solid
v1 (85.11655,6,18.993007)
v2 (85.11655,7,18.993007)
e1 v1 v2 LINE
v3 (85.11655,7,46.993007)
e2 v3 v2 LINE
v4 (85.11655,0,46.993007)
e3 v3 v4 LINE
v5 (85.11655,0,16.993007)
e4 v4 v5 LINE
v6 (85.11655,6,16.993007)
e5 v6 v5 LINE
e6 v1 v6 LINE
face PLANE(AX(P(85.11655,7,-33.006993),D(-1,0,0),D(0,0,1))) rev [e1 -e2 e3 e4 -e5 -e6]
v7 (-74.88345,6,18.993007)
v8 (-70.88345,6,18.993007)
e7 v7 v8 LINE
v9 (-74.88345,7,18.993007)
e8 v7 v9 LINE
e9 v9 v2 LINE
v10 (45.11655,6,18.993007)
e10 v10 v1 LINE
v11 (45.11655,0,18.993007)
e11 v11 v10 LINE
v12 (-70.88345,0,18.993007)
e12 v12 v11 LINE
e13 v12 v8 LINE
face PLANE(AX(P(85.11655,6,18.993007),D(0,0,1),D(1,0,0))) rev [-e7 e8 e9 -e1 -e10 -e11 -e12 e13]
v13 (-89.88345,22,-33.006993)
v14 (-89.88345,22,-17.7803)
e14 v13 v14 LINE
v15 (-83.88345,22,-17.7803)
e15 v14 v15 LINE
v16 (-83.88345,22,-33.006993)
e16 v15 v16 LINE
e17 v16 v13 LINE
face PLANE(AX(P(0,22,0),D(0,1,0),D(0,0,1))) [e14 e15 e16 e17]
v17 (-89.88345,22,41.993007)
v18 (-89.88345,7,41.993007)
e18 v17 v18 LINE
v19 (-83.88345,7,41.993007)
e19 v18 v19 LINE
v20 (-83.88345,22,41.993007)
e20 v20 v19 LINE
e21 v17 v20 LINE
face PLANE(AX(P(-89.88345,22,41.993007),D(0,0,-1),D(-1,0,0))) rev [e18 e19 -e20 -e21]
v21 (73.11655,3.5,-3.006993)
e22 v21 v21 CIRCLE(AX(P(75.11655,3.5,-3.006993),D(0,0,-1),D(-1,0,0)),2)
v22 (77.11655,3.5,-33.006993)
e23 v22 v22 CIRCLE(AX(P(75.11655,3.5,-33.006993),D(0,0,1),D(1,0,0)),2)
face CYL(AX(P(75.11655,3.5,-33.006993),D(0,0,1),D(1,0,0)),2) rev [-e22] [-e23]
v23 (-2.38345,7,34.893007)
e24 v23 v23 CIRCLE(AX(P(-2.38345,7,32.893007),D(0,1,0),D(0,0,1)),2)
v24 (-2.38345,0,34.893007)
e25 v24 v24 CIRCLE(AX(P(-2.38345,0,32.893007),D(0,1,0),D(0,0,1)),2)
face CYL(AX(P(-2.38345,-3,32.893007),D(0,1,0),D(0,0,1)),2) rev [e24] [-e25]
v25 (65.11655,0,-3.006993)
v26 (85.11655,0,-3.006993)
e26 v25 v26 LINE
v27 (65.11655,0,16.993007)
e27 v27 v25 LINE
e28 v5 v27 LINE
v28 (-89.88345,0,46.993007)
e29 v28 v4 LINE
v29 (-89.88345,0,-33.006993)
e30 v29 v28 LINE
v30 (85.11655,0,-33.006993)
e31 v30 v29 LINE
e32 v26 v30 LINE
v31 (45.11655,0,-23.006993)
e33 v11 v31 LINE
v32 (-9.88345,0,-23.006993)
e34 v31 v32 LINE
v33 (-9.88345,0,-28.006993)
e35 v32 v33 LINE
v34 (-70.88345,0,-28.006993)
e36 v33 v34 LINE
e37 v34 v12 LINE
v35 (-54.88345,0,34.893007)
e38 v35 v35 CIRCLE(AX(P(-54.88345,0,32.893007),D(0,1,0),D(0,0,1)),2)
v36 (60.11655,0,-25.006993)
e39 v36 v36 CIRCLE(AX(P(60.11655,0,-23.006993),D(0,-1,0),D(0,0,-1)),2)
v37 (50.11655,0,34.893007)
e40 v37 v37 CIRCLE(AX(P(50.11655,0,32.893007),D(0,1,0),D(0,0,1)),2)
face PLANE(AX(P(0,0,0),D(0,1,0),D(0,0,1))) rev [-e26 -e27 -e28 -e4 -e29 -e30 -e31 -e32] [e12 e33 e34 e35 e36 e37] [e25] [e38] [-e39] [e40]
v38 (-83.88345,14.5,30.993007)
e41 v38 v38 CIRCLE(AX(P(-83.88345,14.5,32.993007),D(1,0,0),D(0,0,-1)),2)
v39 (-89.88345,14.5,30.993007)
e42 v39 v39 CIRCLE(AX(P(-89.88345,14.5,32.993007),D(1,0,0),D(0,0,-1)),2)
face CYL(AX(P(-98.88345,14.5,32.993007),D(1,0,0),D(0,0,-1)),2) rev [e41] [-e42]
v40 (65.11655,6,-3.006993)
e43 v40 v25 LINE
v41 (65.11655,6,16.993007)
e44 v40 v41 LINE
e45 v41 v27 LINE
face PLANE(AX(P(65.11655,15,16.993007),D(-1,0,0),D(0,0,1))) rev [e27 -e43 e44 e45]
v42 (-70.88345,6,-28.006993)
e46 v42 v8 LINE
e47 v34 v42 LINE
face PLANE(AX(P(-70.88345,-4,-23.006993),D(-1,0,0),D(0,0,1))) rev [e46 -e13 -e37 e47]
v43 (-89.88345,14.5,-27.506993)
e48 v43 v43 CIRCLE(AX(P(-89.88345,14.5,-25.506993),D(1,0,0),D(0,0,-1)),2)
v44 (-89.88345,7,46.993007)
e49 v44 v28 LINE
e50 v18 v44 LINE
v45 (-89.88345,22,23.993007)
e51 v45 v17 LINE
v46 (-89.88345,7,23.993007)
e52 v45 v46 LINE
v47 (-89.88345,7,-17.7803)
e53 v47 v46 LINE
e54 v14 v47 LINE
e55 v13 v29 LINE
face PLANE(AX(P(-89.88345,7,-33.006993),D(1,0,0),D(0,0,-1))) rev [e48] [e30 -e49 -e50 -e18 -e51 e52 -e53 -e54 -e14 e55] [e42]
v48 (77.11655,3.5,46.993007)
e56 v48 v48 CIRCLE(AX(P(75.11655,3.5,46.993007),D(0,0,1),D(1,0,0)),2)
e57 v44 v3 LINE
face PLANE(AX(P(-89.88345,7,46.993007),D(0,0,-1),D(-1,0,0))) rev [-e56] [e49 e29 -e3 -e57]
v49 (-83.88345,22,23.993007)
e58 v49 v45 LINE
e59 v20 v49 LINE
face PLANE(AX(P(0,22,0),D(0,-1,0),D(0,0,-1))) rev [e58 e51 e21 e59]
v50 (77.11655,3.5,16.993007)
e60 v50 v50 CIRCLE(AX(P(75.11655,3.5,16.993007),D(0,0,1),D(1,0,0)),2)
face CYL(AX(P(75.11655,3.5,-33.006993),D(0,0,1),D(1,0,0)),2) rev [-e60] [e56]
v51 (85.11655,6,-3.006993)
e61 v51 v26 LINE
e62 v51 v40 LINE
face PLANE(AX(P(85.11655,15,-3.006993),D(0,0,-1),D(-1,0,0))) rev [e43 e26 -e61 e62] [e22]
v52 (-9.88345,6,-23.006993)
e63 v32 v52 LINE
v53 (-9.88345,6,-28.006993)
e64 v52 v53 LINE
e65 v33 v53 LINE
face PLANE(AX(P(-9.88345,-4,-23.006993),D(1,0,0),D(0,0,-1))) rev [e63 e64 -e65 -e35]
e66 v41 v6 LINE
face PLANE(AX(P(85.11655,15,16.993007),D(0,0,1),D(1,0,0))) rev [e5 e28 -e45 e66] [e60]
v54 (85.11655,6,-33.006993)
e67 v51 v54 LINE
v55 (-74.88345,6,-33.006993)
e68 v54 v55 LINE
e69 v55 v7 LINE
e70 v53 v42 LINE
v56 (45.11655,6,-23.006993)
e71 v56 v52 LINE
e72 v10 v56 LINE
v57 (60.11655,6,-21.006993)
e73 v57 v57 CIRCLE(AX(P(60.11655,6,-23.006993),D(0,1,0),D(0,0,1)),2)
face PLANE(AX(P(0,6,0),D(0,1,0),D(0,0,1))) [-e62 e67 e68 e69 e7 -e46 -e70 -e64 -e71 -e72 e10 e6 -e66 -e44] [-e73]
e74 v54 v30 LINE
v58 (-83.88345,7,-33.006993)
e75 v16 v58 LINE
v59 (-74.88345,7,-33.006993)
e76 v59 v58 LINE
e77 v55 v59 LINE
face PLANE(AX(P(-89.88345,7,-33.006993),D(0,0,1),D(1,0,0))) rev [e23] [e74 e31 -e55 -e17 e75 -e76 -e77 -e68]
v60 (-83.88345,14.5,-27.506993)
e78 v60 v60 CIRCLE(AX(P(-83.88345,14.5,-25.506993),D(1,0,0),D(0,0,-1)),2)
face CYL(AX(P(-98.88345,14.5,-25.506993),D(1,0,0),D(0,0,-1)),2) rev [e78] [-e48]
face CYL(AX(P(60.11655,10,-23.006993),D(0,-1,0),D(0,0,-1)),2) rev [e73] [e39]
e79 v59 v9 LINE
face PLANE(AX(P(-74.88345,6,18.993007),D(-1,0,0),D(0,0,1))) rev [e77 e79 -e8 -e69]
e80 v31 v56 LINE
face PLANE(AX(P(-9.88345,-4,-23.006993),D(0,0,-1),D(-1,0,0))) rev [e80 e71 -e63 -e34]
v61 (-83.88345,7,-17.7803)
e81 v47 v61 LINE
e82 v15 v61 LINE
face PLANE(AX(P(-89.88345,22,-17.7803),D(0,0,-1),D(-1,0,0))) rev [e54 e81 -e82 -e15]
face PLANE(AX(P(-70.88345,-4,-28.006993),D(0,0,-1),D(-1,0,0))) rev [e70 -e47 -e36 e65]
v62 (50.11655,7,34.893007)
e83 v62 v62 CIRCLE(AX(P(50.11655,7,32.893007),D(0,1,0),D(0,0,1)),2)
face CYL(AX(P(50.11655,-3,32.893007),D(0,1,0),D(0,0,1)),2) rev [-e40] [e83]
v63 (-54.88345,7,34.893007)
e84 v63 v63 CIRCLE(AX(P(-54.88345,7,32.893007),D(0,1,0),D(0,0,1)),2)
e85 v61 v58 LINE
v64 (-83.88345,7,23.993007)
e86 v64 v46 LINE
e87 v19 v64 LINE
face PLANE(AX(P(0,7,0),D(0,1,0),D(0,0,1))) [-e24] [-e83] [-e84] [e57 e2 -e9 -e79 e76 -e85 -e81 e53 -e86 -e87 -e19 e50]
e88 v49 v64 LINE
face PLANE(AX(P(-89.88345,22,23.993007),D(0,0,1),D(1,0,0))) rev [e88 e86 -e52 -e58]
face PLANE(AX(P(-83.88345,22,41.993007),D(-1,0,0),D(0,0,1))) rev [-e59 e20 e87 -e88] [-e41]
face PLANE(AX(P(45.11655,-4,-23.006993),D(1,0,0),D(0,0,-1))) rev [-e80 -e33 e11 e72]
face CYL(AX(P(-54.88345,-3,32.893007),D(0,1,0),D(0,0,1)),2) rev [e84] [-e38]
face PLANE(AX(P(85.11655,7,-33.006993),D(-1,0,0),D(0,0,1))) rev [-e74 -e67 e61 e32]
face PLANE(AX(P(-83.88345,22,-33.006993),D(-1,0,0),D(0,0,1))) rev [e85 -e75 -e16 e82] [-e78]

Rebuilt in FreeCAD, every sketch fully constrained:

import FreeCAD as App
import Part
import Sketcher


def add_polygon(sketch, points):
    """Adds a closed chain of lines whose ends are joined by coincident constraints."""
    first, n = sketch.GeometryCount, len(points)
    for a, b in zip(points, points[1:] + points[:1]):
        sketch.addGeometry(Part.LineSegment(App.Vector(*a, 0), App.Vector(*b, 0)), False)
    for i in range(n):
        sketch.addConstraint(Sketcher.Constraint("Coincident", first + i, 2, first + (i + 1) % n, 1))

doc = App.newDocument("Part")
params = doc.addObject("Spreadsheet::Sheet", "Params")
for row, (alias, value) in enumerate([
    ("sketch1_width", "175 mm"),
    ("sketch1_height", "80 mm"),
    ("pad1_length", "7 mm"),
    ("sketch2_diameter", "4 mm"),
    ("pocket1_length", "10 mm"),
    ("sketch3_width", "160 mm"),
    ("sketch3_height", "52 mm"),
    ("pocket2_length", "1 mm"),
    ("sketch4_width", "116 mm"),
    ("sketch4_width2", "55 mm"),
    ("sketch4_height", "42 mm"),
    ("sketch4_height2", "5 mm"),
    ("pocket3_length", "10 mm"),
    ("sketch5_width", "6 mm"),
    ("sketch5_height", "18 mm"),
    ("pad2_length", "15 mm"),
    ("sketch6_diameter", "4 mm"),
    ("pocket4_length", "15 mm"),
    ("sketch7_width", "20 mm"),
    ("pocket5_length", "15 mm"),
    ("sketch8_diameter", "4 mm"),
    ("sketch9_diameter", "4 mm"),
    ("pocket7_length", "10 mm"),
], start=1):
    params.set(f"A{row}", alias)
    params.set(f"B{row}", "=" + value)
    params.setAlias(f"B{row}", alias)

body = doc.addObject("PartDesign::Body", "Body")

# Sketch on XZ plane
sketch1 = doc.addObject("Sketcher::SketchObject", "Sketch")
body.addObject(sketch1)
sketch1.AttachmentSupport = (doc.XZ_Plane, [""])
sketch1.MapMode = "FlatFace"
add_polygon(sketch1, [(-90, -33), (-90, 47), (85, 47), (85, -33)])  # lines 0-3
sketch1.addConstraint([
    Sketcher.Constraint("Vertical", 0),
    Sketcher.Constraint("Horizontal", 1),
    Sketcher.Constraint("Vertical", 2),
    Sketcher.Constraint("Horizontal", 3),
    Sketcher.Constraint("DistanceX", 1, 1, 1, 2, 175.0),
    Sketcher.Constraint("DistanceY", 0, 1, 0, 2, 80.0),
    Sketcher.Constraint("DistanceX", 0, 2, -1, 1, 89.88345),
    Sketcher.Constraint("DistanceY", -1, 1, 0, 2, 46.993007),
])
sketch1.setExpression("Constraints[8]", "Params.sketch1_width")
sketch1.setExpression("Constraints[9]", "Params.sketch1_height")
pad1 = doc.addObject("PartDesign::Pad", "Pad")
body.addObject(pad1)
pad1.Profile = sketch1
pad1.setExpression("Length", "Params.pad1_length")
pad1.Reversed = True

# Sketch on XZ plane
sketch2 = doc.addObject("Sketcher::SketchObject", "Sketch001")
body.addObject(sketch2)
sketch2.AttachmentSupport = (doc.XZ_Plane, [""])
sketch2.MapMode = "FlatFace"
sketch2.AttachmentOffset = App.Placement(App.Vector(0, 0, -7), App.Rotation())
sketch2.addGeometry([
    Part.Circle(App.Vector(-54.9, 32.9, 0), App.Vector(0, 0, 1), 2),
    Part.Circle(App.Vector(-2.4, 32.9, 0), App.Vector(0, 0, 1), 2),
    Part.Circle(App.Vector(50.1, 32.9, 0), App.Vector(0, 0, 1), 2),
], False)
sketch2.addConstraint([
    Sketcher.Constraint("Equal", 0, 1),
    Sketcher.Constraint("Equal", 1, 2),
    Sketcher.Constraint("Horizontal", 0, 3, 1, 3),
    Sketcher.Constraint("Horizontal", 1, 3, 2, 3),
    Sketcher.Constraint("Diameter", 0, 4.0),
    Sketcher.Constraint("DistanceX", 0, 3, 2, 3, 105.0),
    Sketcher.Constraint("DistanceX", 0, 3, 1, 3, 52.5),
    Sketcher.Constraint("DistanceX", 0, 3, -1, 1, 54.88345),
    Sketcher.Constraint("DistanceY", -1, 1, 0, 3, 32.893007),
])
sketch2.setExpression("Constraints[4]", "Params.sketch2_diameter")
pocket1 = doc.addObject("PartDesign::Pocket", "Pocket")
body.addObject(pocket1)
pocket1.Profile = sketch2
pocket1.setExpression("Length", "Params.pocket1_length")
pocket1.Reversed = True

# Sketch on XZ plane
sketch3 = doc.addObject("Sketcher::SketchObject", "Sketch002")
body.addObject(sketch3)
sketch3.AttachmentSupport = (doc.XZ_Plane, [""])
sketch3.MapMode = "FlatFace"
sketch3.AttachmentOffset = App.Placement(App.Vector(0, 0, -7), App.Rotation())
add_polygon(sketch3, [(-75, -33), (-75, 19), (85, 19), (85, -33)])  # lines 0-3
sketch3.addConstraint([
    Sketcher.Constraint("Vertical", 0),
    Sketcher.Constraint("Horizontal", 1),
    Sketcher.Constraint("Vertical", 2),
    Sketcher.Constraint("Horizontal", 3),
    Sketcher.Constraint("DistanceX", 1, 1, 1, 2, 160.0),
    Sketcher.Constraint("DistanceY", 0, 1, 0, 2, 52.0),
    Sketcher.Constraint("DistanceX", 0, 2, -1, 1, 74.88345),
    Sketcher.Constraint("DistanceY", -1, 1, 0, 2, 18.993007),
])
sketch3.setExpression("Constraints[8]", "Params.sketch3_width")
sketch3.setExpression("Constraints[9]", "Params.sketch3_height")
pocket2 = doc.addObject("PartDesign::Pocket", "Pocket001")
body.addObject(pocket2)
pocket2.Profile = sketch3
pocket2.setExpression("Length", "Params.pocket2_length")
pocket2.Reversed = True

# Sketch on XZ plane
sketch4 = doc.addObject("Sketcher::SketchObject", "Sketch003")
body.addObject(sketch4)
sketch4.AttachmentSupport = (doc.XZ_Plane, [""])
sketch4.MapMode = "FlatFace"
sketch4.AttachmentOffset = App.Placement(App.Vector(0, 0, -6), App.Rotation())
add_polygon(sketch4, [(-71, 19), (45, 19), (45, -23), (-10, -23), (-10, -28), (-71, -28)])  # lines 0-5
sketch4.addConstraint([
    Sketcher.Constraint("Horizontal", 0),
    Sketcher.Constraint("Vertical", 1),
    Sketcher.Constraint("Horizontal", 2),
    Sketcher.Constraint("Vertical", 3),
    Sketcher.Constraint("Horizontal", 4),
    Sketcher.Constraint("Vertical", 5),
    Sketcher.Constraint("DistanceX", 0, 1, 0, 2, 116.0),
    Sketcher.Constraint("DistanceX", 2, 2, 2, 1, 55.0),
    Sketcher.Constraint("DistanceY", 1, 2, 1, 1, 42.0),
    Sketcher.Constraint("DistanceY", 3, 2, 3, 1, 5.0),
    Sketcher.Constraint("DistanceX", -1, 1, 0, 2, 45.11655),
    Sketcher.Constraint("DistanceY", -1, 1, 0, 2, 18.993007),
])
sketch4.setExpression("Constraints[12]", "Params.sketch4_width")
sketch4.setExpression("Constraints[13]", "Params.sketch4_width2")
sketch4.setExpression("Constraints[14]", "Params.sketch4_height")
sketch4.setExpression("Constraints[15]", "Params.sketch4_height2")
pocket3 = doc.addObject("PartDesign::Pocket", "Pocket002")
body.addObject(pocket3)
pocket3.Profile = sketch4
pocket3.setExpression("Length", "Params.pocket3_length")
pocket3.Reversed = True

# Sketch on XZ plane
sketch5 = doc.addObject("Sketcher::SketchObject", "Sketch004")
body.addObject(sketch5)
sketch5.AttachmentSupport = (doc.XZ_Plane, [""])
sketch5.MapMode = "FlatFace"
sketch5.AttachmentOffset = App.Placement(App.Vector(0, 0, -7), App.Rotation())
add_polygon(sketch5, [(-90, -33), (-90, -18), (-84, -18), (-84, -33)])  # lines 0-3
add_polygon(sketch5, [(-90, 24), (-90, 42), (-84, 42), (-84, 24)])  # lines 4-7
sketch5.addConstraint([
    Sketcher.Constraint("Vertical", 0),
    Sketcher.Constraint("Horizontal", 1),
    Sketcher.Constraint("Vertical", 2),
    Sketcher.Constraint("Horizontal", 3),
    Sketcher.Constraint("Vertical", 4),
    Sketcher.Constraint("Horizontal", 5),
    Sketcher.Constraint("Vertical", 6),
    Sketcher.Constraint("Horizontal", 7),
    Sketcher.Constraint("Vertical", 3, 2, 4, 2),
    Sketcher.Constraint("Vertical", 2, 2, 5, 2),
    Sketcher.Constraint("DistanceX", 1, 1, 1, 2, 6.0),
    Sketcher.Constraint("DistanceY", 4, 1, 4, 2, 18.0),
    Sketcher.Constraint("DistanceY", 3, 2, 4, 2, 75.0),
    Sketcher.Constraint("DistanceY", 0, 2, -1, 1, 17.7803),
    Sketcher.Constraint("DistanceY", 0, 1, 0, 2, 15.226693),
    Sketcher.Constraint("DistanceX", 0, 2, -1, 1, 89.88345),
])
sketch5.setExpression("Constraints[18]", "Params.sketch5_width")
sketch5.setExpression("Constraints[19]", "Params.sketch5_height")
pad2 = doc.addObject("PartDesign::Pad", "Pad001")
body.addObject(pad2)
pad2.Profile = sketch5
pad2.setExpression("Length", "Params.pad2_length")
pad2.Reversed = True

# Sketch on YZ plane
sketch6 = doc.addObject("Sketcher::SketchObject", "Sketch005")
body.addObject(sketch6)
sketch6.AttachmentSupport = (doc.YZ_Plane, [""])
sketch6.MapMode = "FlatFace"
sketch6.AttachmentOffset = App.Placement(App.Vector(0, 0, -83.88345), App.Rotation())
sketch6.addGeometry([
    Part.Circle(App.Vector(14.5, -25.5, 0), App.Vector(0, 0, 1), 2),
    Part.Circle(App.Vector(14.5, 33, 0), App.Vector(0, 0, 1), 2),
], False)
sketch6.addConstraint([
    Sketcher.Constraint("Equal", 0, 1),
    Sketcher.Constraint("Vertical", 0, 3, 1, 3),
    Sketcher.Constraint("Diameter", 0, 4.0),
    Sketcher.Constraint("DistanceX", -1, 1, 0, 3, 14.5),
    Sketcher.Constraint("DistanceY", 0, 3, 1, 3, 58.5),
    Sketcher.Constraint("DistanceY", 0, 3, -1, 1, 25.506993),
])
sketch6.setExpression("Constraints[2]", "Params.sketch6_diameter")
pocket4 = doc.addObject("PartDesign::Pocket", "Pocket003")
body.addObject(pocket4)
pocket4.Profile = sketch6
pocket4.setExpression("Length", "Params.pocket4_length")

# Sketch on XZ plane
sketch7 = doc.addObject("Sketcher::SketchObject", "Sketch006")
body.addObject(sketch7)
sketch7.AttachmentSupport = (doc.XZ_Plane, [""])
sketch7.MapMode = "FlatFace"
add_polygon(sketch7, [(65, 17), (65, -3), (85, -3), (85, 17)])  # lines 0-3
sketch7.addConstraint([
    Sketcher.Constraint("Vertical", 0),
    Sketcher.Constraint("Horizontal", 1),
    Sketcher.Constraint("Vertical", 2),
    Sketcher.Constraint("Horizontal", 3),
    Sketcher.Constraint("Equal", 3, 0),
    Sketcher.Constraint("DistanceX", 1, 1, 1, 2, 20.0),
    Sketcher.Constraint("DistanceX", -1, 1, 0, 2, 65.11655),
    Sketcher.Constraint("DistanceY", 0, 2, -1, 1, 3.006993),
])
sketch7.setExpression("Constraints[9]", "Params.sketch7_width")
pocket5 = doc.addObject("PartDesign::Pocket", "Pocket004")
body.addObject(pocket5)
pocket5.Profile = sketch7
pocket5.setExpression("Length", "Params.pocket5_length")

# Sketch on XY plane
sketch8 = doc.addObject("Sketcher::SketchObject", "Sketch007")
body.addObject(sketch8)
sketch8.AttachmentSupport = (doc.XY_Plane, [""])
sketch8.MapMode = "FlatFace"
sketch8.AttachmentOffset = App.Placement(App.Vector(0, 0, -3.006993), App.Rotation())
sketch8.addGeometry(Part.Circle(App.Vector(75.1, 3.5, 0), App.Vector(0, 0, 1), 2), False)
sketch8.addConstraint([
    Sketcher.Constraint("Diameter", 0, 4.0),
    Sketcher.Constraint("DistanceY", -1, 1, 0, 3, 3.5),
    Sketcher.Constraint("DistanceX", -1, 1, 0, 3, 75.11655),
])
sketch8.setExpression("Constraints[0]", "Params.sketch8_diameter")
pocket6 = doc.addObject("PartDesign::Pocket", "Pocket005")
body.addObject(pocket6)
pocket6.Profile = sketch8
pocket6.Type = "ThroughAll"
pocket6.Midplane = True

# Sketch on XZ plane
sketch9 = doc.addObject("Sketcher::SketchObject", "Sketch008")
body.addObject(sketch9)
sketch9.AttachmentSupport = (doc.XZ_Plane, [""])
sketch9.MapMode = "FlatFace"
sketch9.addGeometry(Part.Circle(App.Vector(60.1, -23, 0), App.Vector(0, 0, 1), 2), False)
sketch9.addConstraint([
    Sketcher.Constraint("Diameter", 0, 4.0),
    Sketcher.Constraint("DistanceX", -1, 1, 0, 3, 60.11655),
    Sketcher.Constraint("DistanceY", 0, 3, -1, 1, 23.006993),
])
sketch9.setExpression("Constraints[0]", "Params.sketch9_diameter")
pocket7 = doc.addObject("PartDesign::Pocket", "Pocket006")
body.addObject(pocket7)
pocket7.Profile = sketch9
pocket7.setExpression("Length", "Params.pocket7_length")

doc.recompute()
